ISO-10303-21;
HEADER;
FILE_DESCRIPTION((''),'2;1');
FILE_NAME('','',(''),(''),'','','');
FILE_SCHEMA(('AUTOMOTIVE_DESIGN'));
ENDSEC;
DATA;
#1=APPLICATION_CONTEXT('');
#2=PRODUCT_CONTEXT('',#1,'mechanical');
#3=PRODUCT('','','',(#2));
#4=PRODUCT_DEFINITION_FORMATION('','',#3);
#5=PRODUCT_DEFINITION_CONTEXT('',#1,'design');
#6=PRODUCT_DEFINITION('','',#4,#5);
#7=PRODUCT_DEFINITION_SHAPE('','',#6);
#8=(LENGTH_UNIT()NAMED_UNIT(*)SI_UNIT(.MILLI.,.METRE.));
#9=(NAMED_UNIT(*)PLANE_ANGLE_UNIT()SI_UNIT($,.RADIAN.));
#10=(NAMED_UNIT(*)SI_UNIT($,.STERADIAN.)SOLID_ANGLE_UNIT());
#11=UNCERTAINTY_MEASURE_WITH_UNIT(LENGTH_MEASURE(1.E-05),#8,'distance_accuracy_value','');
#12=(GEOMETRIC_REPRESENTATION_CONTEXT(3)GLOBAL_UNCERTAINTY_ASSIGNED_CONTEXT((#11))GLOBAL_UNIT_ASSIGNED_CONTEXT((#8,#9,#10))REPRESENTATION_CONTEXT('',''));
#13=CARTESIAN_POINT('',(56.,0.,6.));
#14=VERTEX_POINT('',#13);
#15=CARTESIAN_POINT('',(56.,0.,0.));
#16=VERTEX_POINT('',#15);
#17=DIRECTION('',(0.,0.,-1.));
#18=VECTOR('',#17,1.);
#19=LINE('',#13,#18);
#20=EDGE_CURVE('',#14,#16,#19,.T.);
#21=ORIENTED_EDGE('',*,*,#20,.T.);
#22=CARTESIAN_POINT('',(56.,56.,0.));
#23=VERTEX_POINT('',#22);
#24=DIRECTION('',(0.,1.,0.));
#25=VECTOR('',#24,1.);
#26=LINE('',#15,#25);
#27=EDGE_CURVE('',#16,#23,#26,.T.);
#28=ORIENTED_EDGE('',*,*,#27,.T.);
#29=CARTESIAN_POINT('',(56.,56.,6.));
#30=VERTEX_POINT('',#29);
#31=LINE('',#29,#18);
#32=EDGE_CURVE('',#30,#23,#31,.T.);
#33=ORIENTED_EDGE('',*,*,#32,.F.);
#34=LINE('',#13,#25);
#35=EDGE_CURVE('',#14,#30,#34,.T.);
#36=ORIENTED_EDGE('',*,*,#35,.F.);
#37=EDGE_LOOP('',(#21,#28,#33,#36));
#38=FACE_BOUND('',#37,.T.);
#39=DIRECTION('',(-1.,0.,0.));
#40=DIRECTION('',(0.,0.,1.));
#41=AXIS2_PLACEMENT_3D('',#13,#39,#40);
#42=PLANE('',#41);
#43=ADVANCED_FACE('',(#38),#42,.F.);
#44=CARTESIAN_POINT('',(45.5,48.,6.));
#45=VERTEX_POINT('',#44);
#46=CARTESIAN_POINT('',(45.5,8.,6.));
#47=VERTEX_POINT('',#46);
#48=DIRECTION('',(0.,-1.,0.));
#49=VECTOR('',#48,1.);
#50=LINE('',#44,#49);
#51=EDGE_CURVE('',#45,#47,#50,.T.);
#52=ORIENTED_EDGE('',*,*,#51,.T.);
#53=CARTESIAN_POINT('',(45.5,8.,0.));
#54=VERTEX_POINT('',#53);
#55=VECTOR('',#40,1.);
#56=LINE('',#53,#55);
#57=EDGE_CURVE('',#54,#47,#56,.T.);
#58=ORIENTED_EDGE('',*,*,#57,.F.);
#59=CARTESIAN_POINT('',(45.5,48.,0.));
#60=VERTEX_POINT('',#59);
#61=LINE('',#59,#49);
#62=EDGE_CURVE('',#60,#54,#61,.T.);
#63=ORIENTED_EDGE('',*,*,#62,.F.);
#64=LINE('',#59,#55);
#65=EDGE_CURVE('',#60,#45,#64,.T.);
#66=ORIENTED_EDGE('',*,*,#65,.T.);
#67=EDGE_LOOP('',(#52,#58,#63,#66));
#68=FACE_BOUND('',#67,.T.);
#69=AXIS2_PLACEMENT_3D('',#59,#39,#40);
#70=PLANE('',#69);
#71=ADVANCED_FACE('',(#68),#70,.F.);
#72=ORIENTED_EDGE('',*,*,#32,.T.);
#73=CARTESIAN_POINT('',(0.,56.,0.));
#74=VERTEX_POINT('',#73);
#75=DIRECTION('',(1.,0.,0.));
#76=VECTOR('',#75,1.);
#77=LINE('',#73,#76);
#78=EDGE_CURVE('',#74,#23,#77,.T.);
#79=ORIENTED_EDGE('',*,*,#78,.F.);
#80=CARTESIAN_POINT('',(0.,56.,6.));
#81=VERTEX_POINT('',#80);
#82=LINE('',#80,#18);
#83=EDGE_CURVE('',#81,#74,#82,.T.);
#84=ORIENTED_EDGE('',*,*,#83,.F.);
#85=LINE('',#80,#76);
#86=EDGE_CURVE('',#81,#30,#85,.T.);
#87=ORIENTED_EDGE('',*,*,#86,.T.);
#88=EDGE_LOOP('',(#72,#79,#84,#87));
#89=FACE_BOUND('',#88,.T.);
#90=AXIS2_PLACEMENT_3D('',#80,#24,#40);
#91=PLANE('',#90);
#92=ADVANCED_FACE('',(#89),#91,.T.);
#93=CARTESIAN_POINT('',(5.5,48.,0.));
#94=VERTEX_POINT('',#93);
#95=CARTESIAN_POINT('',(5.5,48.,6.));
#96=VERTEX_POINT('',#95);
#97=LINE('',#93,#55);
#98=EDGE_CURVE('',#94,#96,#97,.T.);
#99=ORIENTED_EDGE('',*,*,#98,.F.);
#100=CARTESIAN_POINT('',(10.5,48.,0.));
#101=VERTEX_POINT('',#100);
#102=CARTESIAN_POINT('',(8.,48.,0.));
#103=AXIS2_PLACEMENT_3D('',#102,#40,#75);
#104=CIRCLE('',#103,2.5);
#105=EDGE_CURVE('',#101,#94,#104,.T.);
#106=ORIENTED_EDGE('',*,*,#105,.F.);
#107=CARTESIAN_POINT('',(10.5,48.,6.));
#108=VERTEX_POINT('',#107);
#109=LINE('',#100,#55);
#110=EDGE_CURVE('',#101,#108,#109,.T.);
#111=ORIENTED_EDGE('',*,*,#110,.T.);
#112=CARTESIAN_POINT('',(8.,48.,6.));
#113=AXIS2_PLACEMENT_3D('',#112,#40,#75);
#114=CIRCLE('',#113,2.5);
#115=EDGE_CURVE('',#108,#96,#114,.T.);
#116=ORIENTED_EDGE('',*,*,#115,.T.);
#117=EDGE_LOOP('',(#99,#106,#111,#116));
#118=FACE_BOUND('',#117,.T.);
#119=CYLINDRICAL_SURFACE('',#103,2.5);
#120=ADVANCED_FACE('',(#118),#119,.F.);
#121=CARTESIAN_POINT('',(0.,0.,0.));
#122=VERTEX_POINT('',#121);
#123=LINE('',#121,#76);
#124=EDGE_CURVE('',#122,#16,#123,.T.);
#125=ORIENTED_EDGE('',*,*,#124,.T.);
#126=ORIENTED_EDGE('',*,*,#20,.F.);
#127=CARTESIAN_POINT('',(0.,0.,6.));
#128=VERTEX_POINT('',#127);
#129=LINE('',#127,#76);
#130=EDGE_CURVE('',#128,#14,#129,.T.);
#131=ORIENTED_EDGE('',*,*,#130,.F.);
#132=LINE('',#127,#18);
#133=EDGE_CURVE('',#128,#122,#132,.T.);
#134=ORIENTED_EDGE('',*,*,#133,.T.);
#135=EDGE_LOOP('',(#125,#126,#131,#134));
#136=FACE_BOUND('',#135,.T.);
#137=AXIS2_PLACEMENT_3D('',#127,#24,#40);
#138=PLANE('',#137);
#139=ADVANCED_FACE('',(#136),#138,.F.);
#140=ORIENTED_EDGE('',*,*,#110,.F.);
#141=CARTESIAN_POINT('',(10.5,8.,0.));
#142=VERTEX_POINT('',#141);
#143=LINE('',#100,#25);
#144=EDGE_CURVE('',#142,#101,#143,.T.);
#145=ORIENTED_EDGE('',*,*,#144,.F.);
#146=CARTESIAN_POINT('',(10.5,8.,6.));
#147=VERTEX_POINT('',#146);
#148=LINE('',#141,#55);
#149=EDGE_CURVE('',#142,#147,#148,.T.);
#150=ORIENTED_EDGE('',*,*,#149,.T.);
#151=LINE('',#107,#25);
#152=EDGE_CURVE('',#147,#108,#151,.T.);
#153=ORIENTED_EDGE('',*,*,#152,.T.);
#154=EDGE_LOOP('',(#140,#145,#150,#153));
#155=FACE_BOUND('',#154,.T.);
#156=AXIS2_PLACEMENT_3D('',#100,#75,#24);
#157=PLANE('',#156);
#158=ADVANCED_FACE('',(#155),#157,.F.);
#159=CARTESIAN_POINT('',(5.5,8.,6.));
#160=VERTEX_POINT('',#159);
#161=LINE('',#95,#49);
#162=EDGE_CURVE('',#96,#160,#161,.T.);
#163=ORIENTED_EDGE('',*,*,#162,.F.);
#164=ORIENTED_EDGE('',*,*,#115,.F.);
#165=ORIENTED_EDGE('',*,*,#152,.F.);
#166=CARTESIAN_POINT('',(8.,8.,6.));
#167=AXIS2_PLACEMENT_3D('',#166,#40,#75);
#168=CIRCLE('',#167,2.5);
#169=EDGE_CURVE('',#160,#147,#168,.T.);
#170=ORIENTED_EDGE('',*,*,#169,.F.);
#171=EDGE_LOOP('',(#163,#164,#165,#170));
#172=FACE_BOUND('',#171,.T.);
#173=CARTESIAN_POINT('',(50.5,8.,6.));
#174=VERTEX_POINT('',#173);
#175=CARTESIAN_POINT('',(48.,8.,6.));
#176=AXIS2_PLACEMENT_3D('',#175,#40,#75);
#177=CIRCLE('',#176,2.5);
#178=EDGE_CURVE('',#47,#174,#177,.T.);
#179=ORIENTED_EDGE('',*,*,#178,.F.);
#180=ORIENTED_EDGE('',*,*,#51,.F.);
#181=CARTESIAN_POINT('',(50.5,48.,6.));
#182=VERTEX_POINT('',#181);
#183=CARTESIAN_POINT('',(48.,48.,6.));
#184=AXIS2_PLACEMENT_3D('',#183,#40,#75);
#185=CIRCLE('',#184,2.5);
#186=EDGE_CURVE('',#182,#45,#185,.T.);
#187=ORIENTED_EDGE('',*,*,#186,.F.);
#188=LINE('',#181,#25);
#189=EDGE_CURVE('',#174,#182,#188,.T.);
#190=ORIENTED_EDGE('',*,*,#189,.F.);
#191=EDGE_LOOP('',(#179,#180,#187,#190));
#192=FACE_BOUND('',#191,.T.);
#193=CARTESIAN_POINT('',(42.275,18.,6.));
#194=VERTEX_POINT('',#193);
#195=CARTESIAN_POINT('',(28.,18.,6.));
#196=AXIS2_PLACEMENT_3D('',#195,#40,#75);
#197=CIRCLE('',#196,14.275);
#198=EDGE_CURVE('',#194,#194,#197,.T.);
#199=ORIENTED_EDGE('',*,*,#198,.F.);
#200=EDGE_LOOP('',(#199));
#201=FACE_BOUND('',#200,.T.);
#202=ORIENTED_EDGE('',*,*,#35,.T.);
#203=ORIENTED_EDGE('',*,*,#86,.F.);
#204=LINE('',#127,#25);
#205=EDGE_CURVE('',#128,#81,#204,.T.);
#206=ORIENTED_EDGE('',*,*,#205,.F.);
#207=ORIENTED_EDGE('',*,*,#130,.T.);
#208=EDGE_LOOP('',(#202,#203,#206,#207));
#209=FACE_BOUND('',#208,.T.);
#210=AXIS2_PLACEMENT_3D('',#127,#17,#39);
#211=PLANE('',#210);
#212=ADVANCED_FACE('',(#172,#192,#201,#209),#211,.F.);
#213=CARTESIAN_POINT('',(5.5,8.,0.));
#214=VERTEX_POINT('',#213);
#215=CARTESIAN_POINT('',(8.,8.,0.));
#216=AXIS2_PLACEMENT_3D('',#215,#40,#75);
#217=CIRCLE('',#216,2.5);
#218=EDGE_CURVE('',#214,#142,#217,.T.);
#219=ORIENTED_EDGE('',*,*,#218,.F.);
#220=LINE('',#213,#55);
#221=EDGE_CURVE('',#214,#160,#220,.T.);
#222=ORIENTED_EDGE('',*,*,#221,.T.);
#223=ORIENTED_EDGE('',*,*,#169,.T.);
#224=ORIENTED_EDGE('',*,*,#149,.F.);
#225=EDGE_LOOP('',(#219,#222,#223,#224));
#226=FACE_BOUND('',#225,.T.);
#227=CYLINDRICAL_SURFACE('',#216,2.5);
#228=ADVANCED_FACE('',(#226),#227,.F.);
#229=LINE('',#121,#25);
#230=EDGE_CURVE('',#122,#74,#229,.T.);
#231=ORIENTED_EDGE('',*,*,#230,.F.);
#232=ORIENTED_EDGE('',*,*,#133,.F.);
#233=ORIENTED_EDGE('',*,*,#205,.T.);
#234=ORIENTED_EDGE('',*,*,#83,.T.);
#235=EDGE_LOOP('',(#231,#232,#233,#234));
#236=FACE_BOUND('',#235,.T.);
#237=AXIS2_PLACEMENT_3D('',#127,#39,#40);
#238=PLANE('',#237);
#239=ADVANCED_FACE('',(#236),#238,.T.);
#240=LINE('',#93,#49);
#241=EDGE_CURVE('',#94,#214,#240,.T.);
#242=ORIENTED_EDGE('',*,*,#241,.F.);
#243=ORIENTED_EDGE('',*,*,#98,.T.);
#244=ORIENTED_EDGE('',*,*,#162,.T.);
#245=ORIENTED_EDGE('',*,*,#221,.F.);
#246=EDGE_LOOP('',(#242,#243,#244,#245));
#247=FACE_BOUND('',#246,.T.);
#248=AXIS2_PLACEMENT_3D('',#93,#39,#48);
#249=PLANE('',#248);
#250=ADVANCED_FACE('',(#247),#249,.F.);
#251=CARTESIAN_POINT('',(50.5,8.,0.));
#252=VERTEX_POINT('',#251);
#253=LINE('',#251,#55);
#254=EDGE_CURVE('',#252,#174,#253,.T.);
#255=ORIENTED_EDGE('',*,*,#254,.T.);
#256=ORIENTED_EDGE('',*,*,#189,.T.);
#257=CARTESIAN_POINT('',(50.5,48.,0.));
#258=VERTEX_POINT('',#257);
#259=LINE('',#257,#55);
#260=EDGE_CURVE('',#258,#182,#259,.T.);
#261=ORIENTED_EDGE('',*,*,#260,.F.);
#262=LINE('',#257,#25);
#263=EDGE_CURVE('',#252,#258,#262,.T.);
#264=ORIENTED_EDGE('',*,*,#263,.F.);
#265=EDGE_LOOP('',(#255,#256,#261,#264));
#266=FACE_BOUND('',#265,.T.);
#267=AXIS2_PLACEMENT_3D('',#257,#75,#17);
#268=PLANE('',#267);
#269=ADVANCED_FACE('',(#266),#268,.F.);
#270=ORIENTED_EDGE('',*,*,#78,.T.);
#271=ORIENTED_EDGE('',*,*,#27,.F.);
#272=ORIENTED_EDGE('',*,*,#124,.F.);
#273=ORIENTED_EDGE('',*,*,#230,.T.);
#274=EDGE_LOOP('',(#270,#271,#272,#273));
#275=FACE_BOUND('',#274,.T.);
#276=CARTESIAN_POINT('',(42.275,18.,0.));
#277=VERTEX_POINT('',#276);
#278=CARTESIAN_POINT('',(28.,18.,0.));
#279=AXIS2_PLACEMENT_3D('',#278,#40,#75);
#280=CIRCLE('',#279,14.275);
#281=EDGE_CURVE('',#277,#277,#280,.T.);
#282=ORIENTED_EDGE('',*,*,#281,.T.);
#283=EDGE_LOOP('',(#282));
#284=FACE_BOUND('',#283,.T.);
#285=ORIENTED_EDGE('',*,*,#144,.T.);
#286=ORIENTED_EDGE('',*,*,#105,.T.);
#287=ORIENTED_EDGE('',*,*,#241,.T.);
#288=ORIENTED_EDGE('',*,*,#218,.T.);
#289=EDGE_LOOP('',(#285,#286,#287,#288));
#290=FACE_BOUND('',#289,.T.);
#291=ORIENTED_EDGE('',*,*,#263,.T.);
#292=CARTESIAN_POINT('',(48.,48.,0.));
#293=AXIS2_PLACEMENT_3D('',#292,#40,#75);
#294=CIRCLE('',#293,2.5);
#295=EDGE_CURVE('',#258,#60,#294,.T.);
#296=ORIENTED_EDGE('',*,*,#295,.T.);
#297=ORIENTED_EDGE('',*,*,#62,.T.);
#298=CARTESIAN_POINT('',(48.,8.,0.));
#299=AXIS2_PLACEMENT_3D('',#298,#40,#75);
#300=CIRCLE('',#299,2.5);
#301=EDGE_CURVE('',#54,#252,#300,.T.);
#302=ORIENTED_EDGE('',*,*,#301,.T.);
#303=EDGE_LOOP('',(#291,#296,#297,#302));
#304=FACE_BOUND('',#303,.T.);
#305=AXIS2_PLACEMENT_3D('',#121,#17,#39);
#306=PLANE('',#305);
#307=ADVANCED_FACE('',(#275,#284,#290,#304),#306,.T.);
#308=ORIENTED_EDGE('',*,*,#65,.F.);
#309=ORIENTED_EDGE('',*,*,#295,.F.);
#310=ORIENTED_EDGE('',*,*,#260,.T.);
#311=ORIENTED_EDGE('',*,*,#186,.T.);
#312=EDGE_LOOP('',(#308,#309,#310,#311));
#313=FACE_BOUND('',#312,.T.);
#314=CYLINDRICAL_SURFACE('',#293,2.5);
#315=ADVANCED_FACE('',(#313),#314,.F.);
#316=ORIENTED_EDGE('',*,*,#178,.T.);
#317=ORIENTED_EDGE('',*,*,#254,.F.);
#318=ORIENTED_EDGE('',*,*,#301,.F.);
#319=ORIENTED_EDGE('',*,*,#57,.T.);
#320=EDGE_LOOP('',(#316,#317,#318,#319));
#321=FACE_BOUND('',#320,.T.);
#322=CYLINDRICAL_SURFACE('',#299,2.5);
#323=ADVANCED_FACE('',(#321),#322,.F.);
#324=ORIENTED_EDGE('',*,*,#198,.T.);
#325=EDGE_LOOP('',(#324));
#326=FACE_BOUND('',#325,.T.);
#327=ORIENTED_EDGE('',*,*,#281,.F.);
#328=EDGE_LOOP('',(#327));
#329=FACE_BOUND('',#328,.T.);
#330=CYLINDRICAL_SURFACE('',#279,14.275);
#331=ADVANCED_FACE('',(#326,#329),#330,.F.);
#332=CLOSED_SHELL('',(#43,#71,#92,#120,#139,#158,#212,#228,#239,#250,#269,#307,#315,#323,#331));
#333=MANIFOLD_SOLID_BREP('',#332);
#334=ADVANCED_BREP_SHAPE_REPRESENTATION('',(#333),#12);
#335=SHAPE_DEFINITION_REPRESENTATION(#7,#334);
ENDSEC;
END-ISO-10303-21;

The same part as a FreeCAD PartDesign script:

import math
import FreeCAD as App
import Part
import Sketcher
from FreeCAD import Vector
Q = App.Units.Quantity


def add_polygon(sketch, points):
    """Adds a closed chain of lines whose ends are joined by coincident constraints."""
    first, n = sketch.GeometryCount, len(points)
    for a, b in zip(points, points[1:] + points[:1]):
        sketch.addGeometry(Part.LineSegment(App.Vector(*a, 0), App.Vector(*b, 0)), False)
    for i in range(n):
        sketch.addConstraint(Sketcher.Constraint("Coincident", first + i, 2, first + (i + 1) % n, 1))

doc = App.newDocument("Part")
body = doc.addObject("PartDesign::Body", "Body")

# Sketch on XY plane
sketch1 = body.newObject("Sketcher::SketchObject", "Sketch")
sketch1.AttachmentSupport = (doc.getObject("XY_Plane"), [""])
sketch1.MapMode = "FlatFace"
add_polygon(sketch1, [(0, 56), (0, 0), (56, 0), (56, 56)])  # lines 0-3
sketch1.addConstraint([
    Sketcher.Constraint("Vertical", 0),
    Sketcher.Constraint("Horizontal", 1),
    Sketcher.Constraint("Vertical", 2),
    Sketcher.Constraint("Horizontal", 3),
    Sketcher.Constraint("Coincident", 0, 2, -1, 1),
    Sketcher.Constraint("Equal", 3, 0),
    Sketcher.Constraint("DistanceX", 1, 1, 1, 2, Q("56 mm")),
])
pad1 = body.newObject("PartDesign::Pad", "Pad")
pad1.Profile = sketch1
pad1.Length = 6

# Sketch on XY plane
sketch2 = body.newObject("Sketcher::SketchObject", "Sketch001")
sketch2.AttachmentSupport = (doc.getObject("XY_Plane"), [""])
sketch2.MapMode = "FlatFace"
sketch2.AttachmentOffset = App.Placement(Vector(0, 0, 6), App.Rotation())
sketch2.addGeometry([
    Part.Circle(Vector(28, 18, 0), Vector(0, 0, 1), 14.3),  # 0
    Part.LineSegment(Vector(10.5, 8, 0), Vector(10.5, 48, 0)),  # 1
    Part.ArcOfCircle(Part.Circle(Vector(8, 48, 0), Vector(0, 0, 1), 2.5), math.radians(0), math.radians(180)),  # 2
    Part.LineSegment(Vector(5.5, 48, 0), Vector(5.5, 8, 0)),  # 3
    Part.ArcOfCircle(Part.Circle(Vector(8, 8, 0), Vector(0, 0, 1), 2.5), math.radians(180), math.radians(360)),  # 4
    Part.LineSegment(Vector(50.5, 8, 0), Vector(50.5, 48, 0)),  # 5
    Part.ArcOfCircle(Part.Circle(Vector(48, 48, 0), Vector(0, 0, 1), 2.5), math.radians(0), math.radians(180)),  # 6
    Part.LineSegment(Vector(45.5, 48, 0), Vector(45.5, 8, 0)),  # 7
    Part.ArcOfCircle(Part.Circle(Vector(48, 8, 0), Vector(0, 0, 1), 2.5), math.radians(180), math.radians(360)),  # 8
], False)
sketch2.addConstraint([
    Sketcher.Constraint("Tangent", 1, 2, 2, 1),
    Sketcher.Constraint("Tangent", 2, 2, 3, 1),
    Sketcher.Constraint("Tangent", 3, 2, 4, 1),
    Sketcher.Constraint("Tangent", 4, 2, 1, 1),
    Sketcher.Constraint("Tangent", 5, 2, 6, 1),
    Sketcher.Constraint("Tangent", 6, 2, 7, 1),
    Sketcher.Constraint("Tangent", 7, 2, 8, 1),
    Sketcher.Constraint("Tangent", 8, 2, 5, 1),
    Sketcher.Constraint("Vertical", 1),
    Sketcher.Constraint("Vertical", 3),
    Sketcher.Constraint("Vertical", 5),
    Sketcher.Constraint("Vertical", 7),
    Sketcher.Constraint("Equal", 4, 6),
    Sketcher.Constraint("Horizontal", 2, 3, 6, 3),
    Sketcher.Constraint("Horizontal", 4, 3, 8, 3),
    Sketcher.Constraint("Radius", 2, Q("2.5 mm")),
    Sketcher.Constraint("Diameter", 0, Q("28.55 mm")),
    Sketcher.Constraint("DistanceY", 1, 1, 1, 2, Q("40 mm")),
    Sketcher.Constraint("DistanceX", -1, 1, 0, 3, Q("28 mm")),
    Sketcher.Constraint("DistanceY", -1, 1, 0, 3, Q("18 mm")),
    Sketcher.Constraint("DistanceX", -1, 1, 2, 3, Q("8 mm")),
    Sketcher.Constraint("DistanceY", -1, 1, 2, 3, Q("48 mm")),
    Sketcher.Constraint("DistanceX", -1, 1, 6, 3, Q("48 mm")),
])
pocket1 = body.newObject("PartDesign::Pocket", "Pocket")
pocket1.Profile = sketch2
pocket1.Length = 6

doc.recompute()
